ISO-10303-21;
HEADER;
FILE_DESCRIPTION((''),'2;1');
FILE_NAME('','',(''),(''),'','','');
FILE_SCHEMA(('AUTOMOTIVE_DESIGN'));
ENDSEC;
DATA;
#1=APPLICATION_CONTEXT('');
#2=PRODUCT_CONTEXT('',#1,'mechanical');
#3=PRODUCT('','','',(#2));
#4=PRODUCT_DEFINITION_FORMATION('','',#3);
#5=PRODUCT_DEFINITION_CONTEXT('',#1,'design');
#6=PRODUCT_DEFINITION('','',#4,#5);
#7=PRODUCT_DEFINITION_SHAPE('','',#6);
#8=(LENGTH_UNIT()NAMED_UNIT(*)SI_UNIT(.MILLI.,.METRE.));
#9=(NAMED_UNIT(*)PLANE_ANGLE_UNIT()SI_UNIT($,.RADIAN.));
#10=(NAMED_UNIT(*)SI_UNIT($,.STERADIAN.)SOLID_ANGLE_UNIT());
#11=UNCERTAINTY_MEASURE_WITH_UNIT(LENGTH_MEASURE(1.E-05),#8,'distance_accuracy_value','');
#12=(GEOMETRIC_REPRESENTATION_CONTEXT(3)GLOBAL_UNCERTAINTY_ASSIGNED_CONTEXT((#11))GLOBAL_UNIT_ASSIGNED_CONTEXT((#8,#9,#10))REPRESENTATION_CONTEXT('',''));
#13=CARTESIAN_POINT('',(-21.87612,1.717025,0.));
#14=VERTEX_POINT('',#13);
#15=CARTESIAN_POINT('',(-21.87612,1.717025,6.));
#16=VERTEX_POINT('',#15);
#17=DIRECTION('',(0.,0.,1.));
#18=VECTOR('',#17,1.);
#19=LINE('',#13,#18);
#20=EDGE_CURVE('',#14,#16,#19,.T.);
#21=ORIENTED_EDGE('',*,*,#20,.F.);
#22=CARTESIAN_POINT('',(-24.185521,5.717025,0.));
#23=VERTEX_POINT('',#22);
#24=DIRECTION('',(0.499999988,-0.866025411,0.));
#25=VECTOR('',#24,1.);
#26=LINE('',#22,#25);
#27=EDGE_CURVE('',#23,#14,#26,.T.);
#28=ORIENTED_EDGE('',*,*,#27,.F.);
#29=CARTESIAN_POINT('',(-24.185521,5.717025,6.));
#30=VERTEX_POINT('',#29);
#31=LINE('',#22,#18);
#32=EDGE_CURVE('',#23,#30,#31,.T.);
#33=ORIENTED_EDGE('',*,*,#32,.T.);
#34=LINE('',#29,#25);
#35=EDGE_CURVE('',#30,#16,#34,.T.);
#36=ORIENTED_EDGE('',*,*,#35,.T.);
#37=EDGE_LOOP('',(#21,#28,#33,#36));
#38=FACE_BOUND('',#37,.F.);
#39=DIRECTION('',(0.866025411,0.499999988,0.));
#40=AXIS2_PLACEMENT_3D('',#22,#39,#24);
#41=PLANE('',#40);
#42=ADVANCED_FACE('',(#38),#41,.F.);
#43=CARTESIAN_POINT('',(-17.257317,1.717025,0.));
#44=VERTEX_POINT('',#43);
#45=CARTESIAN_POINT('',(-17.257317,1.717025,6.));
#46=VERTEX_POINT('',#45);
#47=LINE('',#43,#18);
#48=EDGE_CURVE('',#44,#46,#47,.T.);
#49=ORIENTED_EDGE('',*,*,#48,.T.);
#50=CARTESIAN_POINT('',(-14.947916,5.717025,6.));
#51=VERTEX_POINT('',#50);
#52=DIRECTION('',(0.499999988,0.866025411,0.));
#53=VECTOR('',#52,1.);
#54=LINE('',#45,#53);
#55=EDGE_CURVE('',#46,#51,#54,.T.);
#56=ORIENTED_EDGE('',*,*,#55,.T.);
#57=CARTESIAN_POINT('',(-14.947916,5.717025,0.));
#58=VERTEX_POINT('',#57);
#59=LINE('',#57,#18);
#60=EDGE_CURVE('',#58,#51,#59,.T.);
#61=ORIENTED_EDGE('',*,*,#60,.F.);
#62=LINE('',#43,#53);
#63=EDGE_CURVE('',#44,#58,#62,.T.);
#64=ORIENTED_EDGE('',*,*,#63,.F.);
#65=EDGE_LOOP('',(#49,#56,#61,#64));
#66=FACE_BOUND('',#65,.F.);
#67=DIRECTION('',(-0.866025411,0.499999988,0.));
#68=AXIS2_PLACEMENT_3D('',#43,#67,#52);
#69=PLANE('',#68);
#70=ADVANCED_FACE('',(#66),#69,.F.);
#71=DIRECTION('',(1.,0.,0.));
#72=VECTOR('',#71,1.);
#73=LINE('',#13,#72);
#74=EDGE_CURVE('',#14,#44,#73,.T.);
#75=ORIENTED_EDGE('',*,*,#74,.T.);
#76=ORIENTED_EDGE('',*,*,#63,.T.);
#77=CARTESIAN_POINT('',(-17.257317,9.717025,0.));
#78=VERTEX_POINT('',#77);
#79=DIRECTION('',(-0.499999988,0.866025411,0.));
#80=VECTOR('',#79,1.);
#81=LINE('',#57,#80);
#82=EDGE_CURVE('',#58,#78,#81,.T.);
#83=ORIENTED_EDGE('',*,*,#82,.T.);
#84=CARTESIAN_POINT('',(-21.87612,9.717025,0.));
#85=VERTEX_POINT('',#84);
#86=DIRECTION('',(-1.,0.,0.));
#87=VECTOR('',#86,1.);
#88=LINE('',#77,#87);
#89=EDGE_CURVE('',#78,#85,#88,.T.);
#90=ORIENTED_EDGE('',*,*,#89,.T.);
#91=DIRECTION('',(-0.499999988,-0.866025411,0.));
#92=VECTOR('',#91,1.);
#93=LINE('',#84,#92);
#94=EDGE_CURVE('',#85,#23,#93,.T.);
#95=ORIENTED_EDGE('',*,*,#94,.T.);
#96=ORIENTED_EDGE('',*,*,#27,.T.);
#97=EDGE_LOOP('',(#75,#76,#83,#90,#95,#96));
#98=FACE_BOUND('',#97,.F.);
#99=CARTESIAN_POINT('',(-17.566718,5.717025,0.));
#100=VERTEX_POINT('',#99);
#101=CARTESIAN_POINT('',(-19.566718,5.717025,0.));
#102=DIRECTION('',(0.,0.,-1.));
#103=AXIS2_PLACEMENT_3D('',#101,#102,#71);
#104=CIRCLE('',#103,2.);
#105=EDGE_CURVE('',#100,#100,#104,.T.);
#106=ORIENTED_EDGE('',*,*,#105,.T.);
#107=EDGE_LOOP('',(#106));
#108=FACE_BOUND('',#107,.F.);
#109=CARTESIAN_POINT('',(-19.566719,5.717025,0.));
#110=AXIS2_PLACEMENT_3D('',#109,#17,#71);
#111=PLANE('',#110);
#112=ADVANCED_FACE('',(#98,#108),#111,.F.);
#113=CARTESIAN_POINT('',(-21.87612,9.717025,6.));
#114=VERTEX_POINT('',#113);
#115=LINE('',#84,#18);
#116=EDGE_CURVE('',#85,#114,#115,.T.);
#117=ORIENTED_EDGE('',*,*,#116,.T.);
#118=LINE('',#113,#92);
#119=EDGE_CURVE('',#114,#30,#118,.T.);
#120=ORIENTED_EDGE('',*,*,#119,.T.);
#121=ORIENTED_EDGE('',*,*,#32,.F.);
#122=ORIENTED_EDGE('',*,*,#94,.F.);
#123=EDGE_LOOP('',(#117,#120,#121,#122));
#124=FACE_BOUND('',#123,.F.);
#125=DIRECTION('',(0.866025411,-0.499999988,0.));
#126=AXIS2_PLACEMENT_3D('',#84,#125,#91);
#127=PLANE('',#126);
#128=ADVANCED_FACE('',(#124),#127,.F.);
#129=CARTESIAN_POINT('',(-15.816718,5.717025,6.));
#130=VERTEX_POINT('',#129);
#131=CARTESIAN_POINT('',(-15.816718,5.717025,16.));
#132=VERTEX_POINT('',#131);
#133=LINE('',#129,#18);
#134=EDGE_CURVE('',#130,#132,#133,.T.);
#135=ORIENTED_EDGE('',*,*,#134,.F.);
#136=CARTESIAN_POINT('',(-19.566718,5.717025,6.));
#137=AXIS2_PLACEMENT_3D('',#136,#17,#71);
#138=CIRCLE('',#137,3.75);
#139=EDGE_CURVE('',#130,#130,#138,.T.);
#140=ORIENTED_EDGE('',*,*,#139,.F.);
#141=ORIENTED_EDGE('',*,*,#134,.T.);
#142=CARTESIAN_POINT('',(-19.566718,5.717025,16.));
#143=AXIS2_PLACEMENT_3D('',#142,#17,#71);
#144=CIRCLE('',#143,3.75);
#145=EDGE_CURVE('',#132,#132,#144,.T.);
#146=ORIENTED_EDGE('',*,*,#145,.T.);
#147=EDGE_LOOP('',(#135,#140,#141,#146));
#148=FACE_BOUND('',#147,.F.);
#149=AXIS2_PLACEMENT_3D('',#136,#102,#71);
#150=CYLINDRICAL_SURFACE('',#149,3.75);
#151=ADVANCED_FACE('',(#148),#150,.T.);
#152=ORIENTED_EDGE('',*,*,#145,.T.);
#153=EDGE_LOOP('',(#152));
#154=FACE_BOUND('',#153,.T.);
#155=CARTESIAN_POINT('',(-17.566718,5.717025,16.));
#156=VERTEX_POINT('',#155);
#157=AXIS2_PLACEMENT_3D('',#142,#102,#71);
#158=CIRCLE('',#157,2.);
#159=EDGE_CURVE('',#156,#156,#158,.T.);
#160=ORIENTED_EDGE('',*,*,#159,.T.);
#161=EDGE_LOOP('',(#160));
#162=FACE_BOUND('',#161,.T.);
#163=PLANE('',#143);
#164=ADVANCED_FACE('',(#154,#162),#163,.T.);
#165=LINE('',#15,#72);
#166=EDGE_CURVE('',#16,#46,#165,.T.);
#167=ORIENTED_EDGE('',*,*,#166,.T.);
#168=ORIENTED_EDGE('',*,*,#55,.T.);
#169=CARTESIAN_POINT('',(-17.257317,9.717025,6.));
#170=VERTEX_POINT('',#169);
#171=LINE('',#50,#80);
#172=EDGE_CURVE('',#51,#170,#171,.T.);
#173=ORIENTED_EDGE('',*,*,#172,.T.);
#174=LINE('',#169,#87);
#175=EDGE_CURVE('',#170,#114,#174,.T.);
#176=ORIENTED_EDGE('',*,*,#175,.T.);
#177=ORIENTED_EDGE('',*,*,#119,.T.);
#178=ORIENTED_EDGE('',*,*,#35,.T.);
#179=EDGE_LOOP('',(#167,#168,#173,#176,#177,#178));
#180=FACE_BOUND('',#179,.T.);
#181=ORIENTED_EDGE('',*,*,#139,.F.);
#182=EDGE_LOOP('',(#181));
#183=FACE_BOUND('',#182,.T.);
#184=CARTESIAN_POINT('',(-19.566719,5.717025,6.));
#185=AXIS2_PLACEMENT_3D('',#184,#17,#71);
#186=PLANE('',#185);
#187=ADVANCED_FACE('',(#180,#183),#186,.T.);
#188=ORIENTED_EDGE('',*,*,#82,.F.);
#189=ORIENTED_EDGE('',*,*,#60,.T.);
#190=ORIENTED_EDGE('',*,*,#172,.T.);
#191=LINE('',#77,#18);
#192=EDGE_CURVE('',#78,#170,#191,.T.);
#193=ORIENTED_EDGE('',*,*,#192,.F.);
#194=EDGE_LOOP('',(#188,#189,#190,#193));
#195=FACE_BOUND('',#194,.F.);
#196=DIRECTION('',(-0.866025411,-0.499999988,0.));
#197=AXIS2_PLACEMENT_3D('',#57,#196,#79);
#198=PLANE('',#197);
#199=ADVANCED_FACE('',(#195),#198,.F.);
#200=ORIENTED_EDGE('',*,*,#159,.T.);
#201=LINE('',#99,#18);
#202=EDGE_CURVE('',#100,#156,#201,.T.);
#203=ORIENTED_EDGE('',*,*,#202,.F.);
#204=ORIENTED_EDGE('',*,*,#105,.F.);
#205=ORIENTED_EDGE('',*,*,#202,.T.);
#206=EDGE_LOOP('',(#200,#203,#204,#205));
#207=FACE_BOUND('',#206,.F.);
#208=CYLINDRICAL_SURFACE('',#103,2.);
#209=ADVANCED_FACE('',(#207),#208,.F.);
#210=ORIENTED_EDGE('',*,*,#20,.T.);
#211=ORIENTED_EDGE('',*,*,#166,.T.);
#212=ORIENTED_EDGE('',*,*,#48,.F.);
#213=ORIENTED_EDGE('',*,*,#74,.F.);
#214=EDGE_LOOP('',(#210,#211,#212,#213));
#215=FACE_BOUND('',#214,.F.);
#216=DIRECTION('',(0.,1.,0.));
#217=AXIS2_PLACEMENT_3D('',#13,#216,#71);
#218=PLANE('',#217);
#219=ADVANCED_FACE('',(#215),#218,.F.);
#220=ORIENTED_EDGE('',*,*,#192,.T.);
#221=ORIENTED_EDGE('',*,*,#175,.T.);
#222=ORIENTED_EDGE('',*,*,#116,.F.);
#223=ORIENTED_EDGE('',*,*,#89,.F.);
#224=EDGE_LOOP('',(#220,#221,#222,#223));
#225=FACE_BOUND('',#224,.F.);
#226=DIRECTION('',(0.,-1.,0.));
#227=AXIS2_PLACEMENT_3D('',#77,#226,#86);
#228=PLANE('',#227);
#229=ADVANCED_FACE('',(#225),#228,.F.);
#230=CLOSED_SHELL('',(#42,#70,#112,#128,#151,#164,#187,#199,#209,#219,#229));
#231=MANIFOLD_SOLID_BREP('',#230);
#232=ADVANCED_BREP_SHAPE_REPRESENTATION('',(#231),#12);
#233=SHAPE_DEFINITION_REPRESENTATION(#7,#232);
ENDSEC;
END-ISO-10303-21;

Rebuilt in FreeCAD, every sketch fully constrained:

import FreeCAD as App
import Part
import Sketcher
from FreeCAD import Vector
Q = App.Units.Quantity


def add_polygon(sketch, points):
    """Adds a closed chain of lines whose ends are joined by coincident constraints."""
    first, n = sketch.GeometryCount, len(points)
    for a, b in zip(points, points[1:] + points[:1]):
        sketch.addGeometry(Part.LineSegment(App.Vector(*a, 0), App.Vector(*b, 0)), False)
    for i in range(n):
        sketch.addConstraint(Sketcher.Constraint("Coincident", first + i, 2, first + (i + 1) % n, 1))

doc = App.newDocument("Part")
body = doc.addObject("PartDesign::Body", "Body")

# Sketch on XY plane
sketch1 = doc.addObject("Sketcher::SketchObject", "Sketch")
body.addObject(sketch1)
sketch1.AttachmentSupport = (doc.XY_Plane, [""])
sketch1.MapMode = "FlatFace"
add_polygon(sketch1, [(-17.257317, 9.717025), (-21.87612, 9.717025), (-24.185521, 5.717025), (-21.87612, 1.717025), (-17.257317, 1.717025), (-14.947916, 5.717025)])  # lines 0-5
sketch1.addConstraint([
    Sketcher.Constraint("Horizontal", 0),
    Sketcher.Constraint("Horizontal", 3),
    Sketcher.Constraint("Parallel", 1, 4),
    Sketcher.Constraint("Parallel", 2, 5),
    Sketcher.Constraint("Horizontal", 1, 2, 4, 2),
    Sketcher.Constraint("Vertical", 0, 2, 2, 2),
    Sketcher.Constraint("Vertical", 3, 2, 5, 2),
    Sketcher.Constraint("Angle", 1, Q("-119.999999 deg")),
    Sketcher.Constraint("DistanceY", 1, 2, 0, 2, Q("4 mm")),
    Sketcher.Constraint("DistanceX", 0, 2, 0, 1, Q("4.618803 mm")),
    Sketcher.Constraint("DistanceX", 0, 2, -1, 1, Q("21.87612 mm")),
    Sketcher.Constraint("DistanceY", -1, 1, 0, 2, Q("9.717025 mm")),
])
pad1 = doc.addObject("PartDesign::Pad", "Pad")
body.addObject(pad1)
pad1.Profile = sketch1
pad1.Length = 6

# Sketch on XY plane
sketch2 = doc.addObject("Sketcher::SketchObject", "Sketch001")
body.addObject(sketch2)
sketch2.AttachmentSupport = (doc.XY_Plane, [""])
sketch2.MapMode = "FlatFace"
sketch2.AttachmentOffset = App.Placement(Vector(0, 0, 6), App.Rotation())
sketch2.addGeometry(Part.Circle(Vector(-19.566718, 5.717025, 0), Vector(0, 0, 1), 3.75), False)
sketch2.addConstraint([
    Sketcher.Constraint("Diameter", 0, Q("7.5 mm")),
    Sketcher.Constraint("DistanceX", 0, 3, -1, 1, Q("19.566718 mm")),
    Sketcher.Constraint("DistanceY", -1, 1, 0, 3, Q("5.717025 mm")),
])
pad2 = doc.addObject("PartDesign::Pad", "Pad001")
body.addObject(pad2)
pad2.Profile = sketch2
pad2.Length = 10

# Sketch on XY plane
sketch3 = doc.addObject("Sketcher::SketchObject", "Sketch002")
body.addObject(sketch3)
sketch3.AttachmentSupport = (doc.XY_Plane, [""])
sketch3.MapMode = "FlatFace"
sketch3.addGeometry(Part.Circle(Vector(-19.566718, 5.717025, 0), Vector(0, 0, 1), 2), False)
sketch3.addConstraint([
    Sketcher.Constraint("Diameter", 0, Q("4 mm")),
    Sketcher.Constraint("DistanceX", 0, 3, -1, 1, Q("19.566718 mm")),
    Sketcher.Constraint("DistanceY", -1, 1, 0, 3, Q("5.717025 mm")),
])
pocket1 = doc.addObject("PartDesign::Pocket", "Pocket")
body.addObject(pocket1)
pocket1.Profile = sketch3
pocket1.Length = 25
pocket1.Reversed = True

doc.recompute()
